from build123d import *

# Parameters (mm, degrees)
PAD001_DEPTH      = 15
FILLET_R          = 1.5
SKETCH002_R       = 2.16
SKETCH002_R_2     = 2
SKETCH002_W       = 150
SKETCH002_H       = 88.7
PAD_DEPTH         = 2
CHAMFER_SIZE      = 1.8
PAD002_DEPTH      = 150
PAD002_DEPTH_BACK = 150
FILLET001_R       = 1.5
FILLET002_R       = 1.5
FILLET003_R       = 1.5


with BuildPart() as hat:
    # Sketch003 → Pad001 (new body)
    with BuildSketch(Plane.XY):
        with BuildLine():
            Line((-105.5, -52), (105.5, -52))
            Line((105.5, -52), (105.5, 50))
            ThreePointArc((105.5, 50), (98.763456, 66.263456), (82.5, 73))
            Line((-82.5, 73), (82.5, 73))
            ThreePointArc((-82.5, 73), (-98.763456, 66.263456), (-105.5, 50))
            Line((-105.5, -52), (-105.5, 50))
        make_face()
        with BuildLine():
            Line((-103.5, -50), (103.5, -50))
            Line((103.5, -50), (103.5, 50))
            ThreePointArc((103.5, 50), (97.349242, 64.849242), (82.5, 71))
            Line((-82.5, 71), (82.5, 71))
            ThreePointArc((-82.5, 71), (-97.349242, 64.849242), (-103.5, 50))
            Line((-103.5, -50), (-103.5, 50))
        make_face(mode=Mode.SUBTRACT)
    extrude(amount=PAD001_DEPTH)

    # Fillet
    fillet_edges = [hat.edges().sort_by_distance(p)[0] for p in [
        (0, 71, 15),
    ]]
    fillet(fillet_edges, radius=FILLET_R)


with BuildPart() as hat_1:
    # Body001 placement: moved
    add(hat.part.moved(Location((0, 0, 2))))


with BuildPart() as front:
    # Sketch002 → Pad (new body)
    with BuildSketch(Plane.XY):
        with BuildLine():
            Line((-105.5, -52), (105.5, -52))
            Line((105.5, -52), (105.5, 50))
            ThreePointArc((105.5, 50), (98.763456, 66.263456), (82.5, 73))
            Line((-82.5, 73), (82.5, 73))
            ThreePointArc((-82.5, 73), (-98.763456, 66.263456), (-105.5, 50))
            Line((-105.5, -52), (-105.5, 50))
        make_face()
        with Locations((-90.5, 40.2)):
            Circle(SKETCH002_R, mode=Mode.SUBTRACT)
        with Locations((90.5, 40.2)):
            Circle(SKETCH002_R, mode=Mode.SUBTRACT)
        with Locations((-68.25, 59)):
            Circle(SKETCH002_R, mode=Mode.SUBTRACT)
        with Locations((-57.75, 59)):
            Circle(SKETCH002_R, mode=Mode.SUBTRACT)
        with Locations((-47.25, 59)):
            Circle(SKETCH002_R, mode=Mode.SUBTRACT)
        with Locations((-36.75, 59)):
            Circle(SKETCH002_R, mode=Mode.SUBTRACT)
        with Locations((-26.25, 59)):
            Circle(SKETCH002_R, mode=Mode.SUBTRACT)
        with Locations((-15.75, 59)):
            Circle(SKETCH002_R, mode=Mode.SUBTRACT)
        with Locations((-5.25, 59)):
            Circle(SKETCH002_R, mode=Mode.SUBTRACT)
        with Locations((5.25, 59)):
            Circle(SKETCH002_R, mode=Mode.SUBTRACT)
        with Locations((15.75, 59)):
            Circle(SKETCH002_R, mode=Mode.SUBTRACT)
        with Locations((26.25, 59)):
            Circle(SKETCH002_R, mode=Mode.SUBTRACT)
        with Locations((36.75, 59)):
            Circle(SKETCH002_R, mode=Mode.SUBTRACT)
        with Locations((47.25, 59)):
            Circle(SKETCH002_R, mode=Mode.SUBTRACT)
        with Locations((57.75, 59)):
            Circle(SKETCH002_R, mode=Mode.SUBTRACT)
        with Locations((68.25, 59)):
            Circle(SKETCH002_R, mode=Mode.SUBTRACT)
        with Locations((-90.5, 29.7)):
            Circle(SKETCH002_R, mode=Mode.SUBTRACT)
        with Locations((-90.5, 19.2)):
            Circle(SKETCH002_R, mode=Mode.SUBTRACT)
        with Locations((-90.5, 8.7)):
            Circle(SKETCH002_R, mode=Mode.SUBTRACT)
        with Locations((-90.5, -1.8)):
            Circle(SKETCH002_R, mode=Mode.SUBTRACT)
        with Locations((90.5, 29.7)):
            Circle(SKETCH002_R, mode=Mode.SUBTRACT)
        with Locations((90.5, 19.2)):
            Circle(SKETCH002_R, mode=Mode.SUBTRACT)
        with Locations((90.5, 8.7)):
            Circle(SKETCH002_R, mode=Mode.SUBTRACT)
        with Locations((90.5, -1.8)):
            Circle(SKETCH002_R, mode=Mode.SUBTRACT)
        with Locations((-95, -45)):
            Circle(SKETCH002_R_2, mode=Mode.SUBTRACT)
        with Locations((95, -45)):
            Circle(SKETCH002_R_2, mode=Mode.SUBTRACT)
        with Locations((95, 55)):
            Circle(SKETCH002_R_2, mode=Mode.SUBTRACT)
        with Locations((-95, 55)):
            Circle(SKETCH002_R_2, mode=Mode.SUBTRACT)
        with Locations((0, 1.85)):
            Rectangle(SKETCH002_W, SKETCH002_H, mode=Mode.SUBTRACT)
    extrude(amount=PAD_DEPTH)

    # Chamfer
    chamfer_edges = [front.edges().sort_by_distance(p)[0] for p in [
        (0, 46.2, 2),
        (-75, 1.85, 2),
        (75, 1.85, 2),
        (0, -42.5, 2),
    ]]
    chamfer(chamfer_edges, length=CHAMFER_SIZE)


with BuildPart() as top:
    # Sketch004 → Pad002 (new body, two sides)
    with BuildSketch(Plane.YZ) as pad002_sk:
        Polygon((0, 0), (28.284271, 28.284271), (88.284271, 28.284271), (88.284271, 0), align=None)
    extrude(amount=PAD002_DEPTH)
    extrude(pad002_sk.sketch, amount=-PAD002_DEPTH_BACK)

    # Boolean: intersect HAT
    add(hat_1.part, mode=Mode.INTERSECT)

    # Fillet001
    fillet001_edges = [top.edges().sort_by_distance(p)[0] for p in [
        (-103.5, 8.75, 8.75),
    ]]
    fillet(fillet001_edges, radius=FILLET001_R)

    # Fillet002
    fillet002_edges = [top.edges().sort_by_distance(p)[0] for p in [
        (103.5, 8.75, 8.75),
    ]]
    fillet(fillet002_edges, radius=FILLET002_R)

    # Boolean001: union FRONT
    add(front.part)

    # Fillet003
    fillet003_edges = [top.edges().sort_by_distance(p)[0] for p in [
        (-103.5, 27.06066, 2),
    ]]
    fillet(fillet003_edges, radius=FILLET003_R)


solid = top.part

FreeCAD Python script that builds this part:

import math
import FreeCAD as App
import Part
import Sketcher
from FreeCAD import Vector
Q = App.Units.Quantity


def edges_at(feature, points):
    """Names of the edges that pass closest to the given points."""
    edges = feature.Shape.Edges
    near = lambda p: min(range(len(edges)), key=lambda i: edges[i].distToShape(Part.Vertex(*p))[0])
    return sorted({f"Edge{near(p) + 1}" for p in points})


def add_polygon(sketch, points):
    """Adds a closed chain of lines whose ends are joined by coincident constraints."""
    first, n = sketch.GeometryCount, len(points)
    for a, b in zip(points, points[1:] + points[:1]):
        sketch.addGeometry(Part.LineSegment(App.Vector(*a, 0), App.Vector(*b, 0)), False)
    for i in range(n):
        sketch.addConstraint(Sketcher.Constraint("Coincident", first + i, 2, first + (i + 1) % n, 1))

doc = App.newDocument("Part")
params = doc.addObject("Spreadsheet::Sheet", "Params")
for row, (alias, value) in enumerate([
    ("sketch1_radius", "23 mm"),
    ("sketch1_radius2", "21.000001 mm"),
    ("sketch1_width", "211 mm"),
    ("sketch1_height", "102 mm"),
    ("sketch1_height2", "100 mm"),
    ("pad1_length", "15 mm"),
    ("fillet_radius", "1.5 mm"),
    ("sketch2_diameter", "4 mm"),
    ("sketch2_radius", "23 mm"),
    ("sketch2_diameter2", "4.32 mm"),
    ("sketch2_width", "211 mm"),
    ("sketch2_width2", "150 mm"),
    ("pad2_length", "2 mm"),
    ("chamfer_size", "1.8 mm"),
    ("sketch3_width", "60 mm"),
    ("sketch3_length", "40 mm"),
    ("pad3_length", "150 mm"),
    ("pad3_length2", "150 mm"),
    ("fillet2_radius", "1.5 mm"),
    ("fillet3_radius", "1.5 mm"),
    ("fillet4_radius", "1.5 mm"),
], start=1):
    params.set(f"A{row}", alias)
    params.set(f"B{row}", "=" + value)
    params.setAlias(f"B{row}", alias)

body = doc.addObject("PartDesign::Body", "Body")

# Sketch on XY plane
sketch1 = body.newObject("Sketcher::SketchObject", "Sketch")
sketch1.AttachmentSupport = (doc.getObject("XY_Plane"), [""])
sketch1.MapMode = "FlatFace"
sketch1.addGeometry([
    Part.LineSegment(Vector(-105.5, -52, 0), Vector(105.5, -52, 0)),  # 0
    Part.LineSegment(Vector(105.5, -52, 0), Vector(105.5, 50, 0)),  # 1
    Part.ArcOfCircle(Part.Circle(Vector(82.5, 50, 0), Vector(0, 0, 1), 23), math.radians(0), math.radians(90)),  # 2
    Part.LineSegment(Vector(82.5, 73, 0), Vector(-82.5, 73, 0)),  # 3
    Part.ArcOfCircle(Part.Circle(Vector(-82.5, 50, 0), Vector(0, 0, 1), 23), math.radians(90), math.radians(180)),  # 4
    Part.LineSegment(Vector(-105.5, 50, 0), Vector(-105.5, -52, 0)),  # 5
    Part.LineSegment(Vector(103.5, -50, 0), Vector(-103.5, -50, 0)),  # 6
    Part.LineSegment(Vector(-103.5, -50, 0), Vector(-103.5, 50, 0)),  # 7
    Part.ArcOfCircle(Part.Circle(Vector(-82.499999, 49.999999, 0), Vector(0, 0, 1), 21.000001), math.radians(90.000004), math.radians(179.999996)),  # 8
    Part.LineSegment(Vector(-82.5, 71, 0), Vector(82.5, 71, 0)),  # 9
    Part.ArcOfCircle(Part.Circle(Vector(82.499999, 49.999999, 0), Vector(0, 0, 1), 21.000001), math.radians(0.000004), math.radians(89.999996)),  # 10
    Part.LineSegment(Vector(103.5, 50, 0), Vector(103.5, -50, 0)),  # 11
], False)
sketch1.addConstraint([
    Sketcher.Constraint("Coincident", 0, 2, 1, 1),
    Sketcher.Constraint("Tangent", 1, 2, 2, 1),
    Sketcher.Constraint("Tangent", 2, 2, 3, 1),
    Sketcher.Constraint("Tangent", 3, 2, 4, 1),
    Sketcher.Constraint("Tangent", 4, 2, 5, 1),
    Sketcher.Constraint("Coincident", 5, 2, 0, 1),
    Sketcher.Constraint("Coincident", 6, 2, 7, 1),
    Sketcher.Constraint("Tangent", 7, 2, 8, 2),
    Sketcher.Constraint("Tangent", 8, 1, 9, 1),
    Sketcher.Constraint("Tangent", 9, 2, 10, 2),
    Sketcher.Constraint("Tangent", 10, 1, 11, 1),
    Sketcher.Constraint("Coincident", 11, 2, 6, 1),
    Sketcher.Constraint("Horizontal", 0),
    Sketcher.Constraint("Vertical", 1),
    Sketcher.Constraint("Horizontal", 3),
    Sketcher.Constraint("Vertical", 5),
    Sketcher.Constraint("Horizontal", 6),
    Sketcher.Constraint("Vertical", 7),
    Sketcher.Constraint("Horizontal", 9),
    Sketcher.Constraint("Vertical", 11),
    Sketcher.Constraint("Coincident", 8, 3, 4, 3),
    Sketcher.Constraint("Coincident", 10, 3, 2, 3),
    Sketcher.Constraint("Equal", 2, 4),
    Sketcher.Constraint("Symmetric", 6, 2, 10, 1, -1, 1),
    Sketcher.Constraint("Radius", 2, 23.0),
    Sketcher.Constraint("Radius", 8, 21.000001),
    Sketcher.Constraint("DistanceX", 0, 1, 0, 2, 211.0),
    Sketcher.Constraint("DistanceY", 1, 1, 1, 2, 102.0),
    Sketcher.Constraint("DistanceY", 7, 1, 7, 2, 100.0),
])
sketch1.setExpression("Constraints[24]", "Params.sketch1_radius")
sketch1.setExpression("Constraints[25]", "Params.sketch1_radius2")
sketch1.setExpression("Constraints[26]", "Params.sketch1_width")
sketch1.setExpression("Constraints[27]", "Params.sketch1_height")
sketch1.setExpression("Constraints[28]", "Params.sketch1_height2")
pad1 = body.newObject("PartDesign::Pad", "Pad")
pad1.Profile = sketch1
pad1.setExpression("Length", "Params.pad1_length")
doc.recompute()

fillet = body.newObject("PartDesign::Fillet", "Fillet")
fillet.Base = (pad1, edges_at(pad1, [(0, 71, 15)]))
fillet.setExpression("Radius", "Params.fillet_radius")
body2 = doc.addObject("PartDesign::Body", "Body001")
doc.recompute()

body.Placement = App.Placement(Vector(0, 0, 2), App.Rotation(Vector(0, 0, 1), 0))
boolean = body2.newObject("PartDesign::Boolean", "Boolean")
boolean.Type = "Fuse"
boolean.addObjects([body])
body3 = doc.addObject("PartDesign::Body", "Body002")

# Sketch on XY plane
sketch2 = body3.newObject("Sketcher::SketchObject", "Sketch001")
sketch2.AttachmentSupport = (doc.getObject("XY_Plane002"), [""])
sketch2.MapMode = "FlatFace"
sketch2.addGeometry(Part.LineSegment(Vector(-105.5, -52, 0), Vector(105.5, -52, 0)), False)  # 0
sketch2.addGeometry(Part.LineSegment(Vector(105.5, -52, 0), Vector(105.5, 50, 0)), False)  # 1
sketch2.addGeometry(Part.ArcOfCircle(Part.Circle(Vector(82.5, 50, 0), Vector(0, 0, 1), 23), math.radians(0), math.radians(90)), False)  # 2
sketch2.addGeometry(Part.LineSegment(Vector(82.5, 73, 0), Vector(-82.5, 73, 0)), False)  # 3
sketch2.addGeometry(Part.ArcOfCircle(Part.Circle(Vector(-82.5, 50, 0), Vector(0, 0, 1), 23), math.radians(90), math.radians(180)), False)  # 4
sketch2.addGeometry(Part.LineSegment(Vector(-105.5, 50, 0), Vector(-105.5, -52, 0)), False)  # 5
sketch2.addGeometry(Part.Circle(Vector(-95, -45, 0), Vector(0, 0, 1), 2), False)  # 6
sketch2.addGeometry(Part.Circle(Vector(-90.5, -1.8, 0), Vector(0, 0, 1), 2.16), False)  # 7
sketch2.addGeometry(Part.Circle(Vector(95, -45, 0), Vector(0, 0, 1), 2), False)  # 8
add_polygon(sketch2, [(75, -42.5), (-75, -42.5), (-75, 46.2), (75, 46.2)])  # lines 9-12
sketch2.addGeometry(Part.Circle(Vector(90.5, -1.8, 0), Vector(0, 0, 1), 2.16), False)  # 13
sketch2.addGeometry(Part.Circle(Vector(-90.5, 8.7, 0), Vector(0, 0, 1), 2.16), False)  # 14
sketch2.addGeometry(Part.Circle(Vector(-90.5, 19.2, 0), Vector(0, 0, 1), 2.16), False)  # 15
sketch2.addGeometry(Part.Circle(Vector(-90.5, 29.7, 0), Vector(0, 0, 1), 2.16), False)  # 16
sketch2.addGeometry(Part.Circle(Vector(-90.5, 40.2, 0), Vector(0, 0, 1), 2.16), False)  # 17
sketch2.addGeometry(Part.Circle(Vector(-95, 55, 0), Vector(0, 0, 1), 2), False)  # 18
sketch2.addGeometry(Part.Circle(Vector(-68.25, 59, 0), Vector(0, 0, 1), 2.16), False)  # 19
sketch2.addGeometry(Part.Circle(Vector(-57.75, 59, 0), Vector(0, 0, 1), 2.16), False)  # 20
sketch2.addGeometry(Part.Circle(Vector(-47.25, 59, 0), Vector(0, 0, 1), 2.16), False)  # 21
sketch2.addGeometry(Part.Circle(Vector(-36.75, 59, 0), Vector(0, 0, 1), 2.16), False)  # 22
sketch2.addGeometry(Part.Circle(Vector(-26.25, 59, 0), Vector(0, 0, 1), 2.16), False)  # 23
sketch2.addGeometry(Part.Circle(Vector(-15.75, 59, 0), Vector(0, 0, 1), 2.16), False)  # 24
sketch2.addGeometry(Part.Circle(Vector(-5.25, 59, 0), Vector(0, 0, 1), 2.16), False)  # 25
sketch2.addGeometry(Part.Circle(Vector(90.5, 8.7, 0), Vector(0, 0, 1), 2.16), False)  # 26
sketch2.addGeometry(Part.Circle(Vector(90.5, 19.2, 0), Vector(0, 0, 1), 2.16), False)  # 27
sketch2.addGeometry(Part.Circle(Vector(90.5, 29.7, 0), Vector(0, 0, 1), 2.16), False)  # 28
sketch2.addGeometry(Part.Circle(Vector(5.25, 59, 0), Vector(0, 0, 1), 2.16), False)  # 29
sketch2.addGeometry(Part.Circle(Vector(15.75, 59, 0), Vector(0, 0, 1), 2.16), False)  # 30
sketch2.addGeometry(Part.Circle(Vector(26.25, 59, 0), Vector(0, 0, 1), 2.16), False)  # 31
sketch2.addGeometry(Part.Circle(Vector(36.75, 59, 0), Vector(0, 0, 1), 2.16), False)  # 32
sketch2.addGeometry(Part.Circle(Vector(47.25, 59, 0), Vector(0, 0, 1), 2.16), False)  # 33
sketch2.addGeometry(Part.Circle(Vector(90.5, 40.2, 0), Vector(0, 0, 1), 2.16), False)  # 34
sketch2.addGeometry(Part.Circle(Vector(57.75, 59, 0), Vector(0, 0, 1), 2.16), False)  # 35
sketch2.addGeometry(Part.Circle(Vector(68.25, 59, 0), Vector(0, 0, 1), 2.16), False)  # 36
sketch2.addGeometry(Part.Circle(Vector(95, 55, 0), Vector(0, 0, 1), 2), False)  # 37
sketch2.addConstraint([
    Sketcher.Constraint("Coincident", 0, 2, 1, 1),
    Sketcher.Constraint("Tangent", 1, 2, 2, 1),
    Sketcher.Constraint("Tangent", 2, 2, 3, 1),
    Sketcher.Constraint("Tangent", 3, 2, 4, 1),
    Sketcher.Constraint("Tangent", 4, 2, 5, 1),
    Sketcher.Constraint("Coincident", 5, 2, 0, 1),
    Sketcher.Constraint("Horizontal", 0),
    Sketcher.Constraint("Vertical", 1),
    Sketcher.Constraint("Horizontal", 3),
    Sketcher.Constraint("Vertical", 5),
    Sketcher.Constraint("Horizontal", 9),
    Sketcher.Constraint("Vertical", 10),
    Sketcher.Constraint("Horizontal", 11),
    Sketcher.Constraint("Vertical", 12),
    Sketcher.Constraint("Equal", 2, 4),
    Sketcher.Constraint("Equal", 6, 8),
    Sketcher.Constraint("Equal", 7, 13),
    Sketcher.Constraint("Equal", 13, 14),
    Sketcher.Constraint("Equal", 14, 15),
    Sketcher.Constraint("Equal", 15, 16),
    Sketcher.Constraint("Equal", 16, 17),
    Sketcher.Constraint("Equal", 8, 18),
    Sketcher.Constraint("Equal", 17, 19),
    Sketcher.Constraint("Equal", 19, 20),
    Sketcher.Constraint("Equal", 20, 21),
    Sketcher.Constraint("Equal", 21, 22),
    Sketcher.Constraint("Equal", 22, 23),
    Sketcher.Constraint("Equal", 23, 24),
    Sketcher.Constraint("Equal", 24, 25),
    Sketcher.Constraint("Equal", 25, 26),
    Sketcher.Constraint("Equal", 26, 27),
    Sketcher.Constraint("Equal", 27, 28),
    Sketcher.Constraint("Equal", 28, 29),
    Sketcher.Constraint("Equal", 29, 30),
    Sketcher.Constraint("Equal", 30, 31),
    Sketcher.Constraint("Equal", 31, 32),
    Sketcher.Constraint("Equal", 32, 33),
    Sketcher.Constraint("Equal", 33, 34),
    Sketcher.Constraint("Equal", 34, 35),
    Sketcher.Constraint("Equal", 35, 36),
    Sketcher.Constraint("Equal", 18, 37),
    Sketcher.Constraint("Symmetric", 6, 3, 8, 3, -2),
    Sketcher.Constraint("Symmetric", 7, 3, 13, 3, -2),
    Sketcher.Constraint("Symmetric", 14, 3, 26, 3, -2),
    Sketcher.Constraint("Symmetric", 15, 3, 27, 3, -2),
    Sketcher.Constraint("Symmetric", 16, 3, 28, 3, -2),
    Sketcher.Constraint("Symmetric", 25, 3, 29, 3, -2),
    Sketcher.Constraint("Symmetric", 24, 3, 30, 3, -2),
    Sketcher.Constraint("Symmetric", 23, 3, 31, 3, -2),
    Sketcher.Constraint("Symmetric", 22, 3, 32, 3, -2),
    Sketcher.Constraint("Symmetric", 21, 3, 33, 3, -2),
    Sketcher.Constraint("Symmetric", 17, 3, 34, 3, -2),
    Sketcher.Constraint("Symmetric", 20, 3, 35, 3, -2),
    Sketcher.Constraint("Symmetric", 19, 3, 36, 3, -2),
    Sketcher.Constraint("Symmetric", 18, 3, 37, 3, -2),
    Sketcher.Constraint("Horizontal", 19, 3, 20, 3),
    Sketcher.Constraint("Horizontal", 20, 3, 21, 3),
    Sketcher.Constraint("Horizontal", 21, 3, 22, 3),
    Sketcher.Constraint("Horizontal", 22, 3, 23, 3),
    Sketcher.Constraint("Horizontal", 23, 3, 24, 3),
    Sketcher.Constraint("Horizontal", 24, 3, 25, 3),
    Sketcher.Constraint("Vertical", 7, 3, 14, 3),
    Sketcher.Constraint("Vertical", 14, 3, 15, 3),
    Sketcher.Constraint("Vertical", 15, 3, 16, 3),
    Sketcher.Constraint("Vertical", 16, 3, 17, 3),
    Sketcher.Constraint("Vertical", 6, 3, 18, 3),
    Sketcher.Constraint("Diameter", 6, 4.0),
    Sketcher.Constraint("Radius", 2, 23.0),
    Sketcher.Constraint("Diameter", 7, 4.32),
    Sketcher.Constraint("DistanceX", 0, 1, 0, 2, 211.0),
    Sketcher.Constraint("DistanceX", 9, 2, 9, 1, 150.0),
    Sketcher.Constraint("DistanceY", 1, 1, 1, 2, 102.0),
    Sketcher.Constraint("DistanceY", 10, 1, 10, 2, 88.7),
    Sketcher.Constraint("DistanceY", -1, 1, 2, 3, 50.0),
    Sketcher.Constraint("DistanceX", 6, 3, -1, 1, 95.0),
    Sketcher.Constraint("DistanceY", 6, 3, -1, 1, 45.0),
    Sketcher.Constraint("DistanceY", -1, 1, 18, 3, 55.0),
    Sketcher.Constraint("DistanceY", -1, 1, 19, 3, 59.0),
    Sketcher.Constraint("DistanceX", 9, 2, -1, 1, 75.0),
    Sketcher.Constraint("DistanceX", 7, 3, 4, 3, 8.0),
    Sketcher.Constraint("DistanceX", 2, 3, 13, 3, 8.0),
    Sketcher.Constraint("DistanceY", 7, 3, 15, 3, 21.0),
    Sketcher.Constraint("DistanceY", 14, 3, 16, 3, 21.0),
    Sketcher.Constraint("DistanceY", 15, 3, 17, 3, 21.0),
    Sketcher.Constraint("DistanceX", 19, 3, 21, 3, 21.0),
    Sketcher.Constraint("DistanceX", 20, 3, 22, 3, 21.0),
    Sketcher.Constraint("DistanceX", 21, 3, 23, 3, 21.0),
    Sketcher.Constraint("DistanceX", 22, 3, 24, 3, 21.0),
    Sketcher.Constraint("DistanceX", 23, 3, 25, 3, 21.0),
    Sketcher.Constraint("DistanceX", 24, 3, 29, 3, 21.0),
    Sketcher.Constraint("DistanceY", 17, 3, 10, 2, 6.0),
    Sketcher.Constraint("DistanceY", 7, 3, -1, 1, 1.8),
    Sketcher.Constraint("DistanceY", -1, 1, 14, 3, 8.7),
    Sketcher.Constraint("DistanceX", 19, 3, 20, 3, 10.5),
])
sketch2.setExpression("Constraints[70]", "Params.sketch2_diameter")
sketch2.setExpression("Constraints[71]", "Params.sketch2_radius")
sketch2.setExpression("Constraints[72]", "Params.sketch2_diameter2")
sketch2.setExpression("Constraints[73]", "Params.sketch2_width")
sketch2.setExpression("Constraints[74]", "Params.sketch2_width2")
pad2 = body3.newObject("PartDesign::Pad", "Pad001")
pad2.Profile = sketch2
pad2.setExpression("Length", "Params.pad2_length")
doc.recompute()

chamfer = body3.newObject("PartDesign::Chamfer", "Chamfer")
chamfer.Base = (pad2, edges_at(pad2, [
    (0, 46.2, 2),
    (-75, 1.85, 2),
    (75, 1.85, 2),
    (0, -42.5, 2),
]))
chamfer.setExpression("Size", "Params.chamfer_size")
body4 = doc.addObject("PartDesign::Body", "Body003")

# Sketch on YZ plane
sketch3 = body4.newObject("Sketcher::SketchObject", "Sketch002")
sketch3.AttachmentSupport = (doc.getObject("YZ_Plane003"), [""])
sketch3.MapMode = "FlatFace"
add_polygon(sketch3, [(28.284271, 28.284271), (0, 0), (88.284271, 0), (88.284271, 28.284271)])  # lines 0-3
sketch3.addConstraint([
    Sketcher.Constraint("Horizontal", 1),
    Sketcher.Constraint("Vertical", 2),
    Sketcher.Constraint("Horizontal", 3),
    Sketcher.Constraint("Coincident", 0, 2, -1, 1),
    Sketcher.Constraint("DistanceX", 3, 2, 3, 1, 60.0),
    Sketcher.Constraint("Angle", 0, Q("-135 deg")),
    Sketcher.Constraint("Distance", 0, 40.0),
])
sketch3.setExpression("Constraints[8]", "Params.sketch3_width")
sketch3.setExpression("Constraints[10]", "Params.sketch3_length")
pad3 = body4.newObject("PartDesign::Pad", "Pad002")
pad3.Profile = sketch3
pad3.Type = "TwoLengths"
pad3.setExpression("Length", "Params.pad3_length")
pad3.setExpression("Length2", "Params.pad3_length2")
doc.recompute()

boolean2 = body4.newObject("PartDesign::Boolean", "Boolean001")
boolean2.Type = "Common"
boolean2.addObjects([body2])
doc.recompute()

fillet2 = body4.newObject("PartDesign::Fillet", "Fillet001")
fillet2.Base = (boolean2, edges_at(boolean2, [(-103.5, 8.75, 8.75)]))
fillet2.setExpression("Radius", "Params.fillet2_radius")
doc.recompute()

fillet3 = body4.newObject("PartDesign::Fillet", "Fillet002")
fillet3.Base = (fillet2, edges_at(fillet2, [(103.5, 8.75, 8.75)]))
fillet3.setExpression("Radius", "Params.fillet3_radius")
doc.recompute()

boolean3 = body4.newObject("PartDesign::Boolean", "Boolean002")
boolean3.Type = "Fuse"
boolean3.addObjects([body3])
doc.recompute()

fillet4 = body4.newObject("PartDesign::Fillet", "Fillet003")
fillet4.Base = (boolean3, edges_at(boolean3, [(-103.5, 27.061, 2)]))
fillet4.setExpression("Radius", "Params.fillet4_radius")

doc.recompute()
